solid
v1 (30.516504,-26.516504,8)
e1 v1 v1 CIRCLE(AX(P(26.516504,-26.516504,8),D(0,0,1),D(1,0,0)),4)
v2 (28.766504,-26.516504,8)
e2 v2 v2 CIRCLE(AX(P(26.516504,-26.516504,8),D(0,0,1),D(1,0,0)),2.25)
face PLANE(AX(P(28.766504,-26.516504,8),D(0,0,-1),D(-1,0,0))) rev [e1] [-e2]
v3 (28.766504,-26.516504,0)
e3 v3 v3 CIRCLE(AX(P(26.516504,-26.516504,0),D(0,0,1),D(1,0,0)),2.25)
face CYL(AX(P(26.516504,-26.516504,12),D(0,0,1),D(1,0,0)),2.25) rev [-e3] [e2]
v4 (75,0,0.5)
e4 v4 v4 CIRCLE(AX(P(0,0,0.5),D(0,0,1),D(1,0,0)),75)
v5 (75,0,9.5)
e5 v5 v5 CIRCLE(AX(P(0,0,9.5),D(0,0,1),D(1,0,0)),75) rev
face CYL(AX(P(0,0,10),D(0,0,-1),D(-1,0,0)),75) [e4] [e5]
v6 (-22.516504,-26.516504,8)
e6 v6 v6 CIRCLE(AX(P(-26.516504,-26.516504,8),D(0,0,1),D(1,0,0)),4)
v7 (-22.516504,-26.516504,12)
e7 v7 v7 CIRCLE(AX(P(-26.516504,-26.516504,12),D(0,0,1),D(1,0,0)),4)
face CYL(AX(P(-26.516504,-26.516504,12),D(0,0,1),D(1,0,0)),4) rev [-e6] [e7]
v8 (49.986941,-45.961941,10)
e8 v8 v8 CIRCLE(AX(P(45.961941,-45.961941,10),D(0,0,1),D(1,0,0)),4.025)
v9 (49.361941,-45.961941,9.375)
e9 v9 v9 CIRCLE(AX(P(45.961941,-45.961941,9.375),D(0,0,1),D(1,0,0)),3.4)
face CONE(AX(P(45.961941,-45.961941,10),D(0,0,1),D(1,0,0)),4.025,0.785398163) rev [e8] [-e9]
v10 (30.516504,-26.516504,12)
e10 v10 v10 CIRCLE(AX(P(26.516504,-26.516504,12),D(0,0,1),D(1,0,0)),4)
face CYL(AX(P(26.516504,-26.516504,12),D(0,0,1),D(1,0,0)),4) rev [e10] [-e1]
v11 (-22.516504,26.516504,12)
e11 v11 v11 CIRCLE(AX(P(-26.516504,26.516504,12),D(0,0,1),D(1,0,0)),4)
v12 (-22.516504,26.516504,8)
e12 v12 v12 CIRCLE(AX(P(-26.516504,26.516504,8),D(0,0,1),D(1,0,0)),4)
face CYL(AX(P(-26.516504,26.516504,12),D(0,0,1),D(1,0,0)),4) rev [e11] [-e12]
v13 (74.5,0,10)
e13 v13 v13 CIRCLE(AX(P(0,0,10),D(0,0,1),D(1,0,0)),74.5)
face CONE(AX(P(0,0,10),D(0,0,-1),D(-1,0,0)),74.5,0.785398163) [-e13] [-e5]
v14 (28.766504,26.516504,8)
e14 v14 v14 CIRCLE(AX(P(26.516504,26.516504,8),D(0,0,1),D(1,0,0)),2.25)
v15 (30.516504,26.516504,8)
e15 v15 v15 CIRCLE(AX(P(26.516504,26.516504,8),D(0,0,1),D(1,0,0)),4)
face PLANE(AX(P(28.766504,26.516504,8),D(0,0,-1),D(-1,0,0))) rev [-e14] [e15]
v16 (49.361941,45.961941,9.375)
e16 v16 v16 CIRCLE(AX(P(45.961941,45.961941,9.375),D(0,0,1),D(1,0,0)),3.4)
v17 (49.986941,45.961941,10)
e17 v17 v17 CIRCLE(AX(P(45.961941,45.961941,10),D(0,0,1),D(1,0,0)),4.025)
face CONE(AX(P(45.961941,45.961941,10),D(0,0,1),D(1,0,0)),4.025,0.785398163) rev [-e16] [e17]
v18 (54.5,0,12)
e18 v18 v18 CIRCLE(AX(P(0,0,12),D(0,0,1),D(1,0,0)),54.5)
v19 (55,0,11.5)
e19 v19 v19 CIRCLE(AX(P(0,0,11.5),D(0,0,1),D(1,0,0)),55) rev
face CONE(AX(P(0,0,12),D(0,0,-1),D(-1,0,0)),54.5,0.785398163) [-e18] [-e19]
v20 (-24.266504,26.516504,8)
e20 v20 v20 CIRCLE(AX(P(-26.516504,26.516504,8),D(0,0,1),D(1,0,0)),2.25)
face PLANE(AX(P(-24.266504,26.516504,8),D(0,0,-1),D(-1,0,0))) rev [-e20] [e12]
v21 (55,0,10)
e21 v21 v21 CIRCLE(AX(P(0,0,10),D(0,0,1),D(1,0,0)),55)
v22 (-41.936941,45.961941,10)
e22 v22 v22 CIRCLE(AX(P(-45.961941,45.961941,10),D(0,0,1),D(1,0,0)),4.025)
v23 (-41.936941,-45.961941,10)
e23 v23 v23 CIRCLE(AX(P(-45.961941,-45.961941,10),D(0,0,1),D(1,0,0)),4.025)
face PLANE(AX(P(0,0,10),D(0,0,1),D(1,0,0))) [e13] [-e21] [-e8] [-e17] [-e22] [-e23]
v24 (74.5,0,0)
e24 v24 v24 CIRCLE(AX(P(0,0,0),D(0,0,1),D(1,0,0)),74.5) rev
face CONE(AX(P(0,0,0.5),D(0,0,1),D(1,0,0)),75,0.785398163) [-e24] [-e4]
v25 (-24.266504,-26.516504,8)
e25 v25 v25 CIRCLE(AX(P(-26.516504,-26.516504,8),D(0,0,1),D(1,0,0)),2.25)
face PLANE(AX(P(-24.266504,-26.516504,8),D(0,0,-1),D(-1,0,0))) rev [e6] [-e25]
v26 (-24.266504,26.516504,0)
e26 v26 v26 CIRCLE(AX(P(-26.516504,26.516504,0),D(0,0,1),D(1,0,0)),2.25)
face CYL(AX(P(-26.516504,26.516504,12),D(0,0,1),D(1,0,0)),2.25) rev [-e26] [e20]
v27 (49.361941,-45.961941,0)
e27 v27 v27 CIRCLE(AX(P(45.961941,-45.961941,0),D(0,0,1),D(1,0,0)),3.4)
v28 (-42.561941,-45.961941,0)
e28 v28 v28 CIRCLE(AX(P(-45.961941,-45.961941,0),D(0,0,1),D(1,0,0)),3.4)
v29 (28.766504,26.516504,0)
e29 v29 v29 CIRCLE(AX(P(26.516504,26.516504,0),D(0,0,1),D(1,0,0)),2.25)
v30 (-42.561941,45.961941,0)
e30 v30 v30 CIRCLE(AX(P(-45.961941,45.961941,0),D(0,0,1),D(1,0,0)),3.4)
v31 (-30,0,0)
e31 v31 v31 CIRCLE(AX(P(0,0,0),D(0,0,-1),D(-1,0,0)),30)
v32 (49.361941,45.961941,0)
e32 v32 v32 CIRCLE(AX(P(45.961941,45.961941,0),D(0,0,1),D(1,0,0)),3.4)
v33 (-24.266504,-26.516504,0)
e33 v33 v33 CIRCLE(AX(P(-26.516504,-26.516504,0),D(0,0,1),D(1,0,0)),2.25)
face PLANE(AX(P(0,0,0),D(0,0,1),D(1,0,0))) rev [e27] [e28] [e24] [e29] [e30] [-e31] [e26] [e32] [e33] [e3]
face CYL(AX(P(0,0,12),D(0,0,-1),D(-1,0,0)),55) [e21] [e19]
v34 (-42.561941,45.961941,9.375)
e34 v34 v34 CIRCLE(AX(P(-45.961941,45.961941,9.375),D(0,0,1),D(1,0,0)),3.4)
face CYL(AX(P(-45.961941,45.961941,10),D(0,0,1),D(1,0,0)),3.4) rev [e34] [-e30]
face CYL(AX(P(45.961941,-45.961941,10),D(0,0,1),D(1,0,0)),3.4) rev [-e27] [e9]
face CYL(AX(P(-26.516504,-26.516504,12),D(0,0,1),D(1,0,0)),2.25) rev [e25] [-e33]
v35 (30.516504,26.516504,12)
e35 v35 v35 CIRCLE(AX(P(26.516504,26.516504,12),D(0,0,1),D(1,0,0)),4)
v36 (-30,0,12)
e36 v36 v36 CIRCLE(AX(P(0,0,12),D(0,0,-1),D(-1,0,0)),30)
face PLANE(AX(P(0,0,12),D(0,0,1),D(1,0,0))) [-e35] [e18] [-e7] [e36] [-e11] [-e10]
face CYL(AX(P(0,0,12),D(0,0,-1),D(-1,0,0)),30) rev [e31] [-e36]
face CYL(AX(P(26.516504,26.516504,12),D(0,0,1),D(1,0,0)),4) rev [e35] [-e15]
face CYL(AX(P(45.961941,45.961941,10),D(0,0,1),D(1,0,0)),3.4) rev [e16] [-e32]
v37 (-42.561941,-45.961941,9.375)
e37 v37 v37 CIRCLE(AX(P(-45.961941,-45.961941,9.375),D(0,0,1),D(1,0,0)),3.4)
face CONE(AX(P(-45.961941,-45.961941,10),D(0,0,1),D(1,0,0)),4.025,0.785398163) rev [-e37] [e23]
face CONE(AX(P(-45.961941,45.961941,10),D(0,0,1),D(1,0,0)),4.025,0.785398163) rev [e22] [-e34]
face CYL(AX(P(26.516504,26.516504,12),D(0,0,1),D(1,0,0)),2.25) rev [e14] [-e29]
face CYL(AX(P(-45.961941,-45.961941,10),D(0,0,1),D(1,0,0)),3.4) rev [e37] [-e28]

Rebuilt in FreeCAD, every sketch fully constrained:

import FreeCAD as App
import Part
import Sketcher

V = App.Vector


def edges_at(feature, points):
    """Names of the edges that pass closest to the given points."""
    edges = feature.Shape.Edges
    near = lambda p: min(range(len(edges)), key=lambda i: edges[i].distToShape(Part.Vertex(*p))[0])
    return sorted({f"Edge{near(p) + 1}" for p in points})

doc = App.newDocument("Part")
body = doc.addObject("PartDesign::Body", "Body")

# Sketch on XY plane
sketch1 = body.newObject("Sketcher::SketchObject", "Sketch")
sketch1.AttachmentSupport = (doc.getObject("XY_Plane"), [""])
sketch1.MapMode = "FlatFace"
sketch1.addGeometry(Part.Circle(V(0, 0, 0), V(0, 0, 1), 75), False)
sketch1.addConstraint([
    Sketcher.Constraint("Coincident", 0, 3, -1, 1),
    Sketcher.Constraint("Diameter", 0, 150.0),
])
pad1 = body.newObject("PartDesign::Pad", "Pad")
pad1.Profile = sketch1
pad1.Length = 10

# Sketch on XY plane
sketch2 = body.newObject("Sketcher::SketchObject", "Sketch001")
sketch2.AttachmentSupport = (doc.getObject("XY_Plane"), [""])
sketch2.MapMode = "FlatFace"
sketch2.AttachmentOffset = App.Placement(V(0, 0, 10), App.Rotation())
sketch2.addGeometry(Part.Circle(V(0, 0, 0), V(0, 0, 1), 55), False)
sketch2.addConstraint([
    Sketcher.Constraint("Coincident", 0, 3, -1, 1),
    Sketcher.Constraint("Diameter", 0, 110.0),
])
pad2 = body.newObject("PartDesign::Pad", "Pad001")
pad2.Profile = sketch2
pad2.Length = 2

# Sketch on XY plane
sketch3 = body.newObject("Sketcher::SketchObject", "Sketch002")
sketch3.AttachmentSupport = (doc.getObject("XY_Plane"), [""])
sketch3.MapMode = "FlatFace"
sketch3.AttachmentOffset = App.Placement(V(0, 0, 10), App.Rotation())
sketch3.addGeometry([
    Part.Circle(V(-46, 46, 0), V(0, 0, 1), 3.4),
    Part.Circle(V(46, 46, 0), V(0, 0, 1), 3.4),
    Part.Circle(V(-46, -46, 0), V(0, 0, 1), 3.4),
    Part.Circle(V(46, -46, 0), V(0, 0, 1), 3.4),
], False)
sketch3.addConstraint([
    Sketcher.Constraint("Equal", 0, 1),
    Sketcher.Constraint("Equal", 1, 2),
    Sketcher.Constraint("Equal", 2, 3),
    Sketcher.Constraint("Symmetric", 1, 3, 2, 3, -1, 1),
    Sketcher.Constraint("Symmetric", 0, 3, 3, 3, -1, 1),
    Sketcher.Constraint("Symmetric", 0, 3, 1, 3, -2),
    Sketcher.Constraint("Diameter", 0, 6.8),
    Sketcher.Constraint("DistanceX", 0, 3, -1, 1, 45.961941),
    Sketcher.Constraint("DistanceY", -1, 1, 0, 3, 45.961941),
])
doc.recompute()
hole = body.newObject("PartDesign::Hole", "Hole")
hole.Profile = sketch3
hole.ThreadType = "None"
hole.Diameter = 6.8
hole.DepthType = "ThroughAll"
hole.HoleCutType = "Countersink"
hole.HoleCutDiameter = 8.05
hole.HoleCutCountersinkAngle = 90
doc.recompute()

chamfer = body.newObject("PartDesign::Chamfer", "Chamfer")
chamfer.Base = (hole, edges_at(hole, [(-75, 0, 0), (-75, 0, 10), (-55, 0, 12)]))
chamfer.Size = 0.5

# Sketch on XY plane
sketch4 = body.newObject("Sketcher::SketchObject", "Sketch003")
sketch4.AttachmentSupport = (doc.getObject("XY_Plane"), [""])
sketch4.MapMode = "FlatFace"
sketch4.addGeometry(Part.Circle(V(0, 0, 0), V(0, 0, 1), 30), False)
sketch4.addConstraint([
    Sketcher.Constraint("Coincident", 0, 3, -1, 1),
    Sketcher.Constraint("Diameter", 0, 60.0),
])
pocket1 = body.newObject("PartDesign::Pocket", "Pocket")
pocket1.Profile = sketch4
pocket1.Type = "ThroughAll"
pocket1.Reversed = True

# Sketch on XY plane
sketch5 = body.newObject("Sketcher::SketchObject", "Sketch004")
sketch5.AttachmentSupport = (doc.getObject("XY_Plane"), [""])
sketch5.MapMode = "FlatFace"
sketch5.AttachmentOffset = App.Placement(V(0, 0, 12), App.Rotation())
sketch5.addGeometry([
    Part.Circle(V(-26.5, 26.5, 0), V(0, 0, 1), 2.2),
    Part.Circle(V(26.5, 26.5, 0), V(0, 0, 1), 2.2),
    Part.Circle(V(-26.5, -26.5, 0), V(0, 0, 1), 2.2),
    Part.Circle(V(26.5, -26.5, 0), V(0, 0, 1), 2.2),
], False)
sketch5.addConstraint([
    Sketcher.Constraint("Equal", 0, 1),
    Sketcher.Constraint("Equal", 1, 2),
    Sketcher.Constraint("Equal", 2, 3),
    Sketcher.Constraint("Symmetric", 1, 3, 2, 3, -1, 1),
    Sketcher.Constraint("Symmetric", 0, 3, 3, 3, -1, 1),
    Sketcher.Constraint("Symmetric", 0, 3, 1, 3, -2),
    Sketcher.Constraint("Diameter", 0, 4.5),
    Sketcher.Constraint("DistanceX", 0, 3, 1, 3, 53.033009),
    Sketcher.Constraint("DistanceY", 2, 3, 0, 3, 53.033009),
])
doc.recompute()
hole2 = body.newObject("PartDesign::Hole", "Hole001")
hole2.Profile = sketch5
hole2.ThreadType = "None"
hole2.Diameter = 4.5
hole2.DepthType = "ThroughAll"
hole2.HoleCutType = "Counterbore"
hole2.HoleCutDiameter = 8
hole2.HoleCutDepth = 4

doc.recompute()
